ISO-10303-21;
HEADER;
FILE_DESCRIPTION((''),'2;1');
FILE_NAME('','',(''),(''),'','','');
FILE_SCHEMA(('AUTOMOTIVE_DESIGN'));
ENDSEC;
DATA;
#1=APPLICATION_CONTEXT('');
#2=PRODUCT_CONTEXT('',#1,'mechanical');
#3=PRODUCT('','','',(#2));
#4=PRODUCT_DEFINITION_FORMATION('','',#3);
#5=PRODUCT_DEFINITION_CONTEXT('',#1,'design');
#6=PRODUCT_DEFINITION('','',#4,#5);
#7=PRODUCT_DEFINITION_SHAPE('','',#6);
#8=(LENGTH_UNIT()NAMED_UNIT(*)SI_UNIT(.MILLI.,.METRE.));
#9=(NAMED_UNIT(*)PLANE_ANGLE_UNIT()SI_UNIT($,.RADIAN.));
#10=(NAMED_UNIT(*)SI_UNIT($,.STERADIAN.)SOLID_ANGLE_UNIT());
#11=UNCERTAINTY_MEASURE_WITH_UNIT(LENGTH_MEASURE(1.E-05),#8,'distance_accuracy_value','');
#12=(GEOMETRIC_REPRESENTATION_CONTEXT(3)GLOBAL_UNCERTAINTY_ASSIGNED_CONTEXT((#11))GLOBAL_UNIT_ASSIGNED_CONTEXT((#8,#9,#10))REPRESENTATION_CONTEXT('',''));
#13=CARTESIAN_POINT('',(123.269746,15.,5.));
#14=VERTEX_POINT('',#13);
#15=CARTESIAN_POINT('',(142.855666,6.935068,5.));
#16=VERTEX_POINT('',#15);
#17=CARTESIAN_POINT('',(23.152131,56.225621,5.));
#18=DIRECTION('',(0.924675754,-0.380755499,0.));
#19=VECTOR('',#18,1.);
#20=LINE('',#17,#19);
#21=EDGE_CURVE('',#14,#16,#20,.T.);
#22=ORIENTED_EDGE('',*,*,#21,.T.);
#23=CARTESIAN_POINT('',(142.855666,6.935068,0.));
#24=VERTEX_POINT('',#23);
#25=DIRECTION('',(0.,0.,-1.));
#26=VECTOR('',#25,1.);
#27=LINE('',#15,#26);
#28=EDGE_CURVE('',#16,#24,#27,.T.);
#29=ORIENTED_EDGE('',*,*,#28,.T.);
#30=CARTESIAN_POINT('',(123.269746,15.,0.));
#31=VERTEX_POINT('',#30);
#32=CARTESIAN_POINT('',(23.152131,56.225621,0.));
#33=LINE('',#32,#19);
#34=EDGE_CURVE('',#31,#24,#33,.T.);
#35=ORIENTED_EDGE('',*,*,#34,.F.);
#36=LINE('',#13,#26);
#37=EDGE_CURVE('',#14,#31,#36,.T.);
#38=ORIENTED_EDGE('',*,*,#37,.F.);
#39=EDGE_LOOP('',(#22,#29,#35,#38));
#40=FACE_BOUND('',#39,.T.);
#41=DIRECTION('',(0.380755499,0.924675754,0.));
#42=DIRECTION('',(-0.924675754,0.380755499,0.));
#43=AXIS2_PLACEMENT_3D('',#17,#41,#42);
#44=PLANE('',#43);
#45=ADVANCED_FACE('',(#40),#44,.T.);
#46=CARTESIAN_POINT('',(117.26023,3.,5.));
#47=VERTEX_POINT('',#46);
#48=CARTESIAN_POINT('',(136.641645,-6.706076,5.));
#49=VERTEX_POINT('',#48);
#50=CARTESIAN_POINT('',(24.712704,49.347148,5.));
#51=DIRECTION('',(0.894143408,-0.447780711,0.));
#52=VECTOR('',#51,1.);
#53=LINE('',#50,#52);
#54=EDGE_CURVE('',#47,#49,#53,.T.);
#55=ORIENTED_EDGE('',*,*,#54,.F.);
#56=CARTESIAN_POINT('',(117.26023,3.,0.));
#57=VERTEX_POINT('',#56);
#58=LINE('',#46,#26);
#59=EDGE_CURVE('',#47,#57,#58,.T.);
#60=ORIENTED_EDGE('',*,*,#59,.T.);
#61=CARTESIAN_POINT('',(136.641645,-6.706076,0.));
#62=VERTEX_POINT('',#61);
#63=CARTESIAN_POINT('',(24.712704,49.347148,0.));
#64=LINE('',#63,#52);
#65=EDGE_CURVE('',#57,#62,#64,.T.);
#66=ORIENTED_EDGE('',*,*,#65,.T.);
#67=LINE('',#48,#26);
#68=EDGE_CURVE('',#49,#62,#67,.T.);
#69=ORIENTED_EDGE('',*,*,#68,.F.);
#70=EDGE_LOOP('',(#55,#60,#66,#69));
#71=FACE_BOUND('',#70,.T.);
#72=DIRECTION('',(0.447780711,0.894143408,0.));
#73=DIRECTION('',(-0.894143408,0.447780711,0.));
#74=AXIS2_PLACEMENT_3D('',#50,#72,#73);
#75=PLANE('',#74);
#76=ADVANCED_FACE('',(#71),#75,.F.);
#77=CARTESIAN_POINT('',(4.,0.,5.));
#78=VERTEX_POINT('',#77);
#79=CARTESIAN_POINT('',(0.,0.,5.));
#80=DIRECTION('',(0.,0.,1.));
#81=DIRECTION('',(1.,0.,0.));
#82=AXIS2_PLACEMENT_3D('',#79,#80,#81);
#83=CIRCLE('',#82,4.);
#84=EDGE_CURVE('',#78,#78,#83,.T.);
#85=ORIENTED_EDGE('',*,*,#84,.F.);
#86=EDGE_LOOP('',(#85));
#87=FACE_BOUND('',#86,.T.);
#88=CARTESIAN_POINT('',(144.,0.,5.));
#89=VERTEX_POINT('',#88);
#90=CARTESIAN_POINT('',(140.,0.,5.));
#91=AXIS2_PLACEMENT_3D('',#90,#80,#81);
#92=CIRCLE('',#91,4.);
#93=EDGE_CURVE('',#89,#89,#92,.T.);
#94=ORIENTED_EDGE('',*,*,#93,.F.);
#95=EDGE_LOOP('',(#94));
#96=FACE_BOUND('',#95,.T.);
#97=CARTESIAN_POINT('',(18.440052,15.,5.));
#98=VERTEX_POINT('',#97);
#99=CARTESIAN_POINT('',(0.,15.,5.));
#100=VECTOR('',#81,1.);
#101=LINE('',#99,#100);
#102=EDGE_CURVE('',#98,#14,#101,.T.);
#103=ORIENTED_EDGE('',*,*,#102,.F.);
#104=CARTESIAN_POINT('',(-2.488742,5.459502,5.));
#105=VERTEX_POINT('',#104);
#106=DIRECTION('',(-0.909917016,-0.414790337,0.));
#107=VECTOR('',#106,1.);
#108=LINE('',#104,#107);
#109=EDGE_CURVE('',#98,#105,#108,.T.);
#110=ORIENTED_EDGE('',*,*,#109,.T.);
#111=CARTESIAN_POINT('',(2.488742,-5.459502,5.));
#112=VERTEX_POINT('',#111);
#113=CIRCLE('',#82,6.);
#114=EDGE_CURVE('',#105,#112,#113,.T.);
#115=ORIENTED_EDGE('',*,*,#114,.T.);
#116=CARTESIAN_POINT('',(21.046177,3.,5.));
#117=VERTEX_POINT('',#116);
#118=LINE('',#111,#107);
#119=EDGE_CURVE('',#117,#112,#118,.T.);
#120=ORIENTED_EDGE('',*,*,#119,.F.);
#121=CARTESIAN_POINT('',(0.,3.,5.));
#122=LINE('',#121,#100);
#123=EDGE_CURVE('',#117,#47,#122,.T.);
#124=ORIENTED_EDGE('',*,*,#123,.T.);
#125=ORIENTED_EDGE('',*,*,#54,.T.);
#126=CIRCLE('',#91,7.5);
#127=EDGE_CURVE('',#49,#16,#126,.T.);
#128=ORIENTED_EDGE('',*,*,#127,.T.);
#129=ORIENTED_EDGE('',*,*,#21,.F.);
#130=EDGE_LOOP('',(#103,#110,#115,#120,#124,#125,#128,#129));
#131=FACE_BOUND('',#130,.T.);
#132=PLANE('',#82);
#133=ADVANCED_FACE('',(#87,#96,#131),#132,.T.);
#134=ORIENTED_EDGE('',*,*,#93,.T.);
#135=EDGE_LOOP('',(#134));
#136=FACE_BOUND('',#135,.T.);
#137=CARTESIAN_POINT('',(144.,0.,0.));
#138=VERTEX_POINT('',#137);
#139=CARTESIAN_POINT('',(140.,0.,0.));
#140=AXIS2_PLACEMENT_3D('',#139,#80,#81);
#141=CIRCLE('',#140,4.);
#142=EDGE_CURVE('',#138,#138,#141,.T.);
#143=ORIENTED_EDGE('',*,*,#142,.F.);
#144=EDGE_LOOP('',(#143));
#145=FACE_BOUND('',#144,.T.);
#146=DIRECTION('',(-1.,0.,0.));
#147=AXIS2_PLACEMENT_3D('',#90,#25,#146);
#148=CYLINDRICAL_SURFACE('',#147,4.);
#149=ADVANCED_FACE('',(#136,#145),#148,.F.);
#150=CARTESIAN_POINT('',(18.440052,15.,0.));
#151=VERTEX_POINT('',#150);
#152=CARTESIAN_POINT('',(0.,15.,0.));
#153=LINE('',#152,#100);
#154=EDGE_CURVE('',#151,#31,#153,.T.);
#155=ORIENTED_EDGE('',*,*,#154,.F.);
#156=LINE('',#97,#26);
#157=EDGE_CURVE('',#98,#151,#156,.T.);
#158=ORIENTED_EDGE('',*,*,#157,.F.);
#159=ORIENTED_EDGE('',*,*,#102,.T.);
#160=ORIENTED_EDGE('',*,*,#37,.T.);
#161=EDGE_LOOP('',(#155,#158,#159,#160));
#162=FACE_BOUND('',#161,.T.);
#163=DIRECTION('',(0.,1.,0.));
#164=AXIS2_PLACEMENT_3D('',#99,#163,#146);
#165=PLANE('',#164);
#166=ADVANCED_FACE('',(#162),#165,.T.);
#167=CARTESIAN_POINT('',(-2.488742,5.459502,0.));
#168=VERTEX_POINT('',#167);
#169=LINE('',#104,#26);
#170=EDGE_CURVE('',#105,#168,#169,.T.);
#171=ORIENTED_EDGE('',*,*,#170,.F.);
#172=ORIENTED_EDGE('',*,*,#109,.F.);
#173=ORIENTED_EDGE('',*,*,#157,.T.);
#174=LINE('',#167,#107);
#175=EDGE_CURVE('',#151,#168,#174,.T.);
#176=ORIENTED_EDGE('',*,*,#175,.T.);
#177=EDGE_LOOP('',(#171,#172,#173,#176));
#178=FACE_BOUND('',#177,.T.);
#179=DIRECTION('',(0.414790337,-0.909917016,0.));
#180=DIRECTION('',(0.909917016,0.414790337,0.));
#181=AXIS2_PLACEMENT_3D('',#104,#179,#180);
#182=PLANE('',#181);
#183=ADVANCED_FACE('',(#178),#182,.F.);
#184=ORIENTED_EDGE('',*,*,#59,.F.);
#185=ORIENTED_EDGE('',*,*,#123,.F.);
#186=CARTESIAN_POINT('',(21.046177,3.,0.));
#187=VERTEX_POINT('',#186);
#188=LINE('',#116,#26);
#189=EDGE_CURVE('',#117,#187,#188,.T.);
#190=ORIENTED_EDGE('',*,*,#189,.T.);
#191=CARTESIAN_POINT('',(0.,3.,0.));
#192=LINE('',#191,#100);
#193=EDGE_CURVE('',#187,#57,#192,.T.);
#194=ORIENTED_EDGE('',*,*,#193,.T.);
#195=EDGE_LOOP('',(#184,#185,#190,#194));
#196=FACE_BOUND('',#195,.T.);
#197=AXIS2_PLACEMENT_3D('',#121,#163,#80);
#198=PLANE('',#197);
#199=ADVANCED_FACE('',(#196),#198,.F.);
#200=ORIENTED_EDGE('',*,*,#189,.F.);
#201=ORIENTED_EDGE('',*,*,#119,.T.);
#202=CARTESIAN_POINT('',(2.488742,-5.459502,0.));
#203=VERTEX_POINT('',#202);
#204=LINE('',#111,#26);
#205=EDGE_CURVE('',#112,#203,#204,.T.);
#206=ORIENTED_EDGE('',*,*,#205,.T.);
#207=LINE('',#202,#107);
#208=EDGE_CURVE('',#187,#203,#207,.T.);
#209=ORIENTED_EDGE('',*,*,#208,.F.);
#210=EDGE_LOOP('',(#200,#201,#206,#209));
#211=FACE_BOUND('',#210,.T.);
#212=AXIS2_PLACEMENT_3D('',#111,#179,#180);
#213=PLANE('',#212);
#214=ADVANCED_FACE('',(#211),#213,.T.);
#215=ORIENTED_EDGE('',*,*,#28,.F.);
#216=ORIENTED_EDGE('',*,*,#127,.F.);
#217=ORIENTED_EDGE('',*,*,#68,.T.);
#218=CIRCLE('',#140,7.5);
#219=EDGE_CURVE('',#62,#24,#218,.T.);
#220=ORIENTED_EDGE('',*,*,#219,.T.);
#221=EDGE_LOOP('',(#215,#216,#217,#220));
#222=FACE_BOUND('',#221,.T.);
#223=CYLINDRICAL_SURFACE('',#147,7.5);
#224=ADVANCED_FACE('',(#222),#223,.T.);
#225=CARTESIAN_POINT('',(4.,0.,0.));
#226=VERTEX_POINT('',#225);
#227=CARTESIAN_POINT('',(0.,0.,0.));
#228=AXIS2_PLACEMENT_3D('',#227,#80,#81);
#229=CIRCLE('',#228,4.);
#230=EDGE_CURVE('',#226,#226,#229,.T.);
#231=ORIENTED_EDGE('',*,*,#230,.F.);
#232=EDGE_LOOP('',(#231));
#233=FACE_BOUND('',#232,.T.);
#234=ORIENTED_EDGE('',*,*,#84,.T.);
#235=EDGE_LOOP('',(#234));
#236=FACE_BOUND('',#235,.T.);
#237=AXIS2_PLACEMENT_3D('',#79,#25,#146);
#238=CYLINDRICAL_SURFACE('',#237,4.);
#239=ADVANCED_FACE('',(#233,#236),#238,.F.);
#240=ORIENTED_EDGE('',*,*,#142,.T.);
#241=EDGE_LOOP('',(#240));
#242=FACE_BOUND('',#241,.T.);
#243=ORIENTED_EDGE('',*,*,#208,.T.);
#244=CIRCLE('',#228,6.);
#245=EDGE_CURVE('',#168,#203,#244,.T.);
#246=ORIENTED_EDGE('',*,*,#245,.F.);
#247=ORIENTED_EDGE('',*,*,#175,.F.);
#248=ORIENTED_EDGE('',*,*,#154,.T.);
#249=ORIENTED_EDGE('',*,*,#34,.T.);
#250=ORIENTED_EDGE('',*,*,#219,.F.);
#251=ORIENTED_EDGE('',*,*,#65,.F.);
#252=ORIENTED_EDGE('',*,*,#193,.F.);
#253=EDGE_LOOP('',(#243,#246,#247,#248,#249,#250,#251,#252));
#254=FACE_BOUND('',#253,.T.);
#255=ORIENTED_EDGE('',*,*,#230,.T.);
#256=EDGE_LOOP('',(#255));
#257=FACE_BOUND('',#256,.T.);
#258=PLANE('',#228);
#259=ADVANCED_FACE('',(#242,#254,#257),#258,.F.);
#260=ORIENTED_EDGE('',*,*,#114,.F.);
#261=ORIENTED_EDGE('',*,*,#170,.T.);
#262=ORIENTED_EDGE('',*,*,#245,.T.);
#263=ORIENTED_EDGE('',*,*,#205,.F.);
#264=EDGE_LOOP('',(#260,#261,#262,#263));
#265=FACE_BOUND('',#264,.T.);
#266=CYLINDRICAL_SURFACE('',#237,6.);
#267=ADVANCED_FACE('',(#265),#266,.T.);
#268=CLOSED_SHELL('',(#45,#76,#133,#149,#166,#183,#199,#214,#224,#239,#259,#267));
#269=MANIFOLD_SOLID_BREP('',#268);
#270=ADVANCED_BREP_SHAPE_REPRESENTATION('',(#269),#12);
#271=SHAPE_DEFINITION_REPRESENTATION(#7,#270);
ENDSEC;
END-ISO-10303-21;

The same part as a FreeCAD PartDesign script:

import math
import FreeCAD as App
import Part
import Sketcher

V = App.Vector
Q = App.Units.Quantity

doc = App.newDocument("Part")
body = doc.addObject("PartDesign::Body", "Body")

# Sketch on XY plane
sketch1 = body.newObject("Sketcher::SketchObject", "Sketch")
sketch1.AttachmentSupport = (doc.getObject("XY_Plane"), [""])
sketch1.MapMode = "FlatFace"
sketch1.addGeometry([
    Part.LineSegment(V(123.3, 15, 0), V(18.4, 15, 0)),  # 0
    Part.LineSegment(V(18.4, 15, 0), V(-2.5, 5.5, 0)),  # 1
    Part.ArcOfCircle(Part.Circle(V(0, 0, 0), V(0, 0, 1), 6), math.radians(115), math.radians(295)),  # 2
    Part.LineSegment(V(2.5, -5.5, 0), V(21, 3, 0)),  # 3
    Part.LineSegment(V(21, 3, 0), V(117.3, 3, 0)),  # 4
    Part.LineSegment(V(117.3, 3, 0), V(136.6, -6.7, 0)),  # 5
    Part.ArcOfCircle(Part.Circle(V(140, 0, 0), V(0, 0, 1), 7.5), math.radians(-117), math.radians(68)),  # 6
    Part.LineSegment(V(142.9, 6.9, 0), V(123.3, 15, 0)),  # 7
    Part.Circle(V(140, 0, 0), V(0, 0, 1), 4),  # 8
    Part.Circle(V(0, 0, 0), V(0, 0, 1), 4),  # 9
], False)
sketch1.addConstraint([
    Sketcher.Constraint("Coincident", 0, 2, 1, 1),
    Sketcher.Constraint("Tangent", 1, 2, 2, 1),
    Sketcher.Constraint("Tangent", 2, 2, 3, 1),
    Sketcher.Constraint("Coincident", 3, 2, 4, 1),
    Sketcher.Constraint("Coincident", 4, 2, 5, 1),
    Sketcher.Constraint("Tangent", 5, 2, 6, 1),
    Sketcher.Constraint("Tangent", 6, 2, 7, 1),
    Sketcher.Constraint("Coincident", 7, 2, 0, 1),
    Sketcher.Constraint("Horizontal", 0),
    Sketcher.Constraint("Horizontal", 4),
    Sketcher.Constraint("Coincident", 2, 3, -1, 1),
    Sketcher.Constraint("Coincident", 9, 3, -1, 1),
    Sketcher.Constraint("Coincident", 8, 3, 6, 3),
    Sketcher.Constraint("Equal", 8, 9),
    Sketcher.Constraint("PointOnObject", 6, 3, -1),
    Sketcher.Constraint("Parallel", 1, 3),
    Sketcher.Constraint("Diameter", 8, Q("8 mm")),
    Sketcher.Constraint("Radius", 2, Q("6 mm")),
    Sketcher.Constraint("Radius", 6, Q("7.5 mm")),
    Sketcher.Constraint("DistanceX", -1, 1, 6, 3, Q("140 mm")),
    Sketcher.Constraint("DistanceY", -1, 1, 0, 2, Q("15 mm")),
    Sketcher.Constraint("DistanceY", -1, 1, 3, 2, Q("3 mm")),
    Sketcher.Constraint("DistanceX", 7, 2, 5, 2, Q("13.371899 mm")),
    Sketcher.Constraint("Distance", 1, Q("23.000772 mm")),
    Sketcher.Constraint("DistanceX", 0, 2, 0, 1, Q("104.829694 mm")),
])
pad1 = body.newObject("PartDesign::Pad", "Pad")
pad1.Profile = sketch1
pad1.Length = 5

doc.recompute()
